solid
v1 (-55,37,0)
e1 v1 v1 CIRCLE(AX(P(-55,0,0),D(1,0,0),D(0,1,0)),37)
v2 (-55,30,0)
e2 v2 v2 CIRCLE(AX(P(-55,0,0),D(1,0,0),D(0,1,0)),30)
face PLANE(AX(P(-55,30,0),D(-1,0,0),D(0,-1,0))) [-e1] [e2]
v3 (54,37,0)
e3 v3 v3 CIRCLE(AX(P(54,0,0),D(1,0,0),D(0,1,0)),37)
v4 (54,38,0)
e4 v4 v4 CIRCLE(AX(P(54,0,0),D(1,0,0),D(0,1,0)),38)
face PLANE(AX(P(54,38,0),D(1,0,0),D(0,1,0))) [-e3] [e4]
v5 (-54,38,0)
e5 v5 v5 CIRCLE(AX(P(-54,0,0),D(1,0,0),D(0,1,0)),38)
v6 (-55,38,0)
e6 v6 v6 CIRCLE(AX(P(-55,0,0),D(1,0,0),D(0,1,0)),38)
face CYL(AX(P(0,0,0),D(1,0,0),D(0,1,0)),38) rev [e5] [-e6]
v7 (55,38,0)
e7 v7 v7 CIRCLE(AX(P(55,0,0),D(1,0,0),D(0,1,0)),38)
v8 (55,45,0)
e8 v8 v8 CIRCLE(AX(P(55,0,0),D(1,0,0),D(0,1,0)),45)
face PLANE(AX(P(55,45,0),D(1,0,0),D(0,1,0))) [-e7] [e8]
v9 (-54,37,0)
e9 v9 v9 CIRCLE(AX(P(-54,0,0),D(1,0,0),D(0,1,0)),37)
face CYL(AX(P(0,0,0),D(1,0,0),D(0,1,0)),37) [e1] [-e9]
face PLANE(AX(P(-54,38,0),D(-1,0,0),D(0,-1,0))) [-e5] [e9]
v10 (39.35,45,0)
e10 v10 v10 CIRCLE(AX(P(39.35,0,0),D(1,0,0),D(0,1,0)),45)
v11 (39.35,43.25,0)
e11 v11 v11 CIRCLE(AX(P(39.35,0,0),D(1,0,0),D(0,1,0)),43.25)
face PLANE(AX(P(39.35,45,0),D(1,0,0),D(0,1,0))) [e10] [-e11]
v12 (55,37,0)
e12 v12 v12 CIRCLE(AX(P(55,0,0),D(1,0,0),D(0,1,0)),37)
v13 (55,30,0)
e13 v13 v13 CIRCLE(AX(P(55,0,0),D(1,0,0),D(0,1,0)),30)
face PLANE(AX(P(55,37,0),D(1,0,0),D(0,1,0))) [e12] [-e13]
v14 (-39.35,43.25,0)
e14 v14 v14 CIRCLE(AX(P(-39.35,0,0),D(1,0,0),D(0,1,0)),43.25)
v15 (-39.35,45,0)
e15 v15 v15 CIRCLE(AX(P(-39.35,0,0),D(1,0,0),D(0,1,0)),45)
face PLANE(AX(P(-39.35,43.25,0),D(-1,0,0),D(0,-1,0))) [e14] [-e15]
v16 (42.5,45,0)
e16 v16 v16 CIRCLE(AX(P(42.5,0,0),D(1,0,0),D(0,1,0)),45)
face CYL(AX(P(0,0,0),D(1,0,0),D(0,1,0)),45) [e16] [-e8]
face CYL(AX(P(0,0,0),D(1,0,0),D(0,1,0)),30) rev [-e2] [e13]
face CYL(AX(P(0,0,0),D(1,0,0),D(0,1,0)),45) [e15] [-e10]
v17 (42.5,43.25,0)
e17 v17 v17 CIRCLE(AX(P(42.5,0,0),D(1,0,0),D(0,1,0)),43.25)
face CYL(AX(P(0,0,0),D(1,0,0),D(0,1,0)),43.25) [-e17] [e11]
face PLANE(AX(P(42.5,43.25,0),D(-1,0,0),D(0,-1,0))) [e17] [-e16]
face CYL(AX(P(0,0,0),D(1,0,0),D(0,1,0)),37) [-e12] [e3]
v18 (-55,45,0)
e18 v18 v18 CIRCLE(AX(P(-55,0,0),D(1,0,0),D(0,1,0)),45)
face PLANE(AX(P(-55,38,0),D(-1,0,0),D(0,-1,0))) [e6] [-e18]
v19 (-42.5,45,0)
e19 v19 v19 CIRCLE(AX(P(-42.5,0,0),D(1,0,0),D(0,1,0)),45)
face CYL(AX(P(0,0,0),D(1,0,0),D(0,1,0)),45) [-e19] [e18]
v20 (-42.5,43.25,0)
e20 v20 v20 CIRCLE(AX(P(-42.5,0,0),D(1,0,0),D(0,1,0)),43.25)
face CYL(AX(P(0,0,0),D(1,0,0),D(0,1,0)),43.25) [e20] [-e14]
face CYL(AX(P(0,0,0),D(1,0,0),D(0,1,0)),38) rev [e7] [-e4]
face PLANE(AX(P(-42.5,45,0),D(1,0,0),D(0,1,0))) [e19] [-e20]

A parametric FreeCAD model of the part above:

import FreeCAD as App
import Part
import Sketcher
Q = App.Units.Quantity


def add_polygon(sketch, points):
    """Adds a closed chain of lines whose ends are joined by coincident constraints."""
    first, n = sketch.GeometryCount, len(points)
    for a, b in zip(points, points[1:] + points[:1]):
        sketch.addGeometry(Part.LineSegment(App.Vector(*a, 0), App.Vector(*b, 0)), False)
    for i in range(n):
        sketch.addConstraint(Sketcher.Constraint("Coincident", first + i, 2, first + (i + 1) % n, 1))

doc = App.newDocument("Part")
body = doc.addObject("PartDesign::Body", "Body")

# Sketch on XY plane
sketch1 = body.newObject("Sketcher::SketchObject", "Sketch")
sketch1.AttachmentSupport = (doc.getObject("XY_Plane"), [""])
sketch1.MapMode = "FlatFace"
add_polygon(sketch1, [(-42.5, 45), (-55, 45), (-55, 38), (-54, 38), (-54, 37), (-55, 37), (-55, 30), (55, 30), (55, 37), (54, 37), (54, 38), (55, 38), (55, 45), (42.5, 45), (42.5, 43.2), (39.4, 43.2), (39.4, 45), (-39.4, 45), (-39.4, 43.2), (-42.5, 43.2)])  # lines 0-19
sketch1.addConstraint(Sketcher.Constraint("Horizontal", 0))
sketch1.addConstraint(Sketcher.Constraint("Vertical", 1))
sketch1.addConstraint(Sketcher.Constraint("Horizontal", 2))
sketch1.addConstraint(Sketcher.Constraint("Vertical", 3))
sketch1.addConstraint(Sketcher.Constraint("Horizontal", 4))
sketch1.addConstraint(Sketcher.Constraint("Vertical", 5))
sketch1.addConstraint(Sketcher.Constraint("Horizontal", 6))
sketch1.addConstraint(Sketcher.Constraint("Vertical", 7))
sketch1.addConstraint(Sketcher.Constraint("Horizontal", 8))
sketch1.addConstraint(Sketcher.Constraint("Vertical", 9))
sketch1.addConstraint(Sketcher.Constraint("Horizontal", 10))
sketch1.addConstraint(Sketcher.Constraint("Vertical", 11))
sketch1.addConstraint(Sketcher.Constraint("Horizontal", 12))
sketch1.addConstraint(Sketcher.Constraint("Vertical", 13))
sketch1.addConstraint(Sketcher.Constraint("Horizontal", 14))
sketch1.addConstraint(Sketcher.Constraint("Vertical", 15))
sketch1.addConstraint(Sketcher.Constraint("Horizontal", 16))
sketch1.addConstraint(Sketcher.Constraint("Vertical", 17))
sketch1.addConstraint(Sketcher.Constraint("Horizontal", 18))
sketch1.addConstraint(Sketcher.Constraint("Vertical", 19))
sketch1.addConstraint(Sketcher.Constraint("Symmetric", 4, 2, 7, 2, -2))
sketch1.addConstraint(Sketcher.Constraint("Symmetric", 2, 2, 9, 2, -2))
sketch1.addConstraint(Sketcher.Constraint("Symmetric", 0, 2, 11, 2, -2))
sketch1.addConstraint(Sketcher.Constraint("Symmetric", 14, 2, 17, 2, -2))
sketch1.addConstraint(Sketcher.Constraint("Horizontal", 12, 2, 15, 2))
sketch1.addConstraint(Sketcher.Constraint("Vertical", 1, 2, 4, 2))
sketch1.addConstraint(Sketcher.Constraint("Equal", 0, 12))
sketch1.addConstraint(Sketcher.Constraint("Equal", 10, 3))
sketch1.addConstraint(Sketcher.Constraint("Equal", 1, 5))
sketch1.addConstraint(Sketcher.Constraint("DistanceX", 2, 1, 2, 2, Q("1 mm")))
sketch1.addConstraint(Sketcher.Constraint("DistanceX", 6, 1, 6, 2, Q("110 mm")))
sketch1.addConstraint(Sketcher.Constraint("DistanceY", 1, 2, 1, 1, Q("7 mm")))
sketch1.addConstraint(Sketcher.Constraint("DistanceX", 0, 2, 0, 1, Q("12.5 mm")))
sketch1.addConstraint(Sketcher.Constraint("DistanceX", 16, 2, 16, 1, Q("78.7 mm")))
sketch1.addConstraint(Sketcher.Constraint("DistanceY", -1, 1, 0, 2, Q("45 mm")))
sketch1.addConstraint(Sketcher.Constraint("DistanceY", 13, 2, 13, 1, Q("1.75 mm")))
revolution = body.newObject("PartDesign::Revolution", "Revolution")
revolution.Profile = sketch1
revolution.ReferenceAxis = (sketch1, ["H_Axis"])
revolution.Angle = 360

doc.recompute()
